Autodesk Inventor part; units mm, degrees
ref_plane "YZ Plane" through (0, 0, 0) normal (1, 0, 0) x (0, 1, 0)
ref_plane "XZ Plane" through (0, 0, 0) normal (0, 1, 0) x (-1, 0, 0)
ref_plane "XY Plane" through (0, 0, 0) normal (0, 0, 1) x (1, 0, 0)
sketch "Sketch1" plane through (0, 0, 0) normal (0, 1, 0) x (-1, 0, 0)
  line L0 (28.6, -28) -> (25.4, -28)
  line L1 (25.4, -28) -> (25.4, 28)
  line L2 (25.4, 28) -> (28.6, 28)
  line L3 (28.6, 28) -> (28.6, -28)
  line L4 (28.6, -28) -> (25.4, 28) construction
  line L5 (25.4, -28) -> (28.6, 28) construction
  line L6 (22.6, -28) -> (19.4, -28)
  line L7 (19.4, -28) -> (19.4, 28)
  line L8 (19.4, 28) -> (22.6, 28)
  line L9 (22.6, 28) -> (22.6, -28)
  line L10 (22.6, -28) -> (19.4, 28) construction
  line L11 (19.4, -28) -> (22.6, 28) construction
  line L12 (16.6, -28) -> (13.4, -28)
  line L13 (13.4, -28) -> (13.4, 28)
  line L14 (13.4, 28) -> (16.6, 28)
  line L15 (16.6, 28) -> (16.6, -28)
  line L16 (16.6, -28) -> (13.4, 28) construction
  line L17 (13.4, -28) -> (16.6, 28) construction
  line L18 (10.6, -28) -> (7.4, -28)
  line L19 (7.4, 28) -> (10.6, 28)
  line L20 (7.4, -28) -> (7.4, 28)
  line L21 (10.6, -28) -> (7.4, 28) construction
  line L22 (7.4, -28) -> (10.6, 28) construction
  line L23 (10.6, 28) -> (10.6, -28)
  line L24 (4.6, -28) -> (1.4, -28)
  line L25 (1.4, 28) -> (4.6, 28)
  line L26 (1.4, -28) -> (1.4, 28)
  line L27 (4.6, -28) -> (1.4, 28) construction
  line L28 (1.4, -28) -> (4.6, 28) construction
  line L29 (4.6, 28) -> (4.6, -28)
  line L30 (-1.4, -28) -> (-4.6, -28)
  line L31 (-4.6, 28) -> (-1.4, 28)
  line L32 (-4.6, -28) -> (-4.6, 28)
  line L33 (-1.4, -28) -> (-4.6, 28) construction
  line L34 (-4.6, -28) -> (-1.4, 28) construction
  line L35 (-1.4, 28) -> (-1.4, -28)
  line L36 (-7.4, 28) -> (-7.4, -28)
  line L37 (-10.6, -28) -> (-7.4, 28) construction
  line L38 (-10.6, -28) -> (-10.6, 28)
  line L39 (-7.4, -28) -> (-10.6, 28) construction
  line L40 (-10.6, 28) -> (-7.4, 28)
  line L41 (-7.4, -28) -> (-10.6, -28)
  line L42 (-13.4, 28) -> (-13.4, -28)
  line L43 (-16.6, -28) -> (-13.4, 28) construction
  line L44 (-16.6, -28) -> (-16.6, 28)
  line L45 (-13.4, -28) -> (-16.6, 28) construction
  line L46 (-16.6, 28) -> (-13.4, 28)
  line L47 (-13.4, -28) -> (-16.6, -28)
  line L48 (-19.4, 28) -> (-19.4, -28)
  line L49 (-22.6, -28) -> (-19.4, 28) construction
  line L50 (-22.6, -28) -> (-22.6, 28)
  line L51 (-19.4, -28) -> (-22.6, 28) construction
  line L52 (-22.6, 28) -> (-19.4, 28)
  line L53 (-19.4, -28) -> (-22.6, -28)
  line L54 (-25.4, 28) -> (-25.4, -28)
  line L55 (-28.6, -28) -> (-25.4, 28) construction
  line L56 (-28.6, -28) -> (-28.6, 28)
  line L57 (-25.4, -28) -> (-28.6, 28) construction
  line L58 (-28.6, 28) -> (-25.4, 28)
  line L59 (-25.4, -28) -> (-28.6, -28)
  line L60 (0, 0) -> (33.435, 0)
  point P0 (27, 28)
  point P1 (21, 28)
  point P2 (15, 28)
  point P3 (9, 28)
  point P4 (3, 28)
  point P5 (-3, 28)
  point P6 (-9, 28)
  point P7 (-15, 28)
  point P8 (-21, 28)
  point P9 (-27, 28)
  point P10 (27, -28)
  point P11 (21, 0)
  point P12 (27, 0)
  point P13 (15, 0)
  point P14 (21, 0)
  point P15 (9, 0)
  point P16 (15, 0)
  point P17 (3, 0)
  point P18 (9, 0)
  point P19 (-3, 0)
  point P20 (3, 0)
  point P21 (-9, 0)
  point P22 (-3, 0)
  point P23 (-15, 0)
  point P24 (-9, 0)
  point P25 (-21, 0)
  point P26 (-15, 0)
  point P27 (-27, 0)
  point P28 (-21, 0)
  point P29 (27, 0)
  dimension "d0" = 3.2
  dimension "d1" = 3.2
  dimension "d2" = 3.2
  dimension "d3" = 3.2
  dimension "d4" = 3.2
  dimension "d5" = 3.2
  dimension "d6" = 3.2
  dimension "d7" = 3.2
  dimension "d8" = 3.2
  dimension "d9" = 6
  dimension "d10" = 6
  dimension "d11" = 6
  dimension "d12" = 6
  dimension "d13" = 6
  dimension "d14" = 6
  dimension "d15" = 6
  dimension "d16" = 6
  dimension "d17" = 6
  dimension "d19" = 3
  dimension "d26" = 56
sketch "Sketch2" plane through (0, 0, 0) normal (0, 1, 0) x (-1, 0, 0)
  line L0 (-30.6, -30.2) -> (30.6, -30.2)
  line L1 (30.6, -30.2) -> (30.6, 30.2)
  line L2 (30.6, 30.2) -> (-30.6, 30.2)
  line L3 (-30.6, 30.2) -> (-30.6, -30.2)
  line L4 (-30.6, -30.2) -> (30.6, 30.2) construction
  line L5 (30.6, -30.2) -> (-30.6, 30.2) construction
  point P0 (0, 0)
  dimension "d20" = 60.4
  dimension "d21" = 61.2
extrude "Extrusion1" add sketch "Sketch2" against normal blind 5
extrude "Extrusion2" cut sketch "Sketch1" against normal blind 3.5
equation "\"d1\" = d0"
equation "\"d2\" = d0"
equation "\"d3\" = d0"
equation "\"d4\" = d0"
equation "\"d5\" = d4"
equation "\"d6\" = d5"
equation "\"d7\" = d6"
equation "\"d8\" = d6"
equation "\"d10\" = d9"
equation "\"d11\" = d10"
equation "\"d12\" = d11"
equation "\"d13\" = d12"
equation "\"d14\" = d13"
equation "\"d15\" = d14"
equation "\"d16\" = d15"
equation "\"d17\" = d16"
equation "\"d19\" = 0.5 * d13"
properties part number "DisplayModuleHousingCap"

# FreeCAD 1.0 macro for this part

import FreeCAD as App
import Part
import Sketcher
from FreeCAD import Vector
Q = App.Units.Quantity


def add_polygon(sketch, points):
    """Adds a closed chain of lines whose ends are joined by coincident constraints."""
    first, n = sketch.GeometryCount, len(points)
    for a, b in zip(points, points[1:] + points[:1]):
        sketch.addGeometry(Part.LineSegment(App.Vector(*a, 0), App.Vector(*b, 0)), False)
    for i in range(n):
        sketch.addConstraint(Sketcher.Constraint("Coincident", first + i, 2, first + (i + 1) % n, 1))

doc = App.newDocument("Part")
body = doc.addObject("PartDesign::Body", "Body")

sketch1 = body.newObject("Sketcher::SketchObject", "Sketch")
sketch1.AttachmentSupport = (doc.getObject("XZ_Plane"), [""])
sketch1.MapMode = "FlatFace"
add_polygon(sketch1, [(31, 30), (31, -30), (-31, -30), (-31, 30)])
sketch1.addConstraint([
    Sketcher.Constraint("Vertical", 0),
    Sketcher.Constraint("Horizontal", 1),
    Sketcher.Constraint("Vertical", 2),
    Sketcher.Constraint("Horizontal", 3),
    Sketcher.Constraint("Symmetric", 0, 2, 2, 2, -1, 1),
    Sketcher.Constraint("DistanceX", 1, 2, 1, 1, Q("61.2 mm")),
    Sketcher.Constraint("DistanceY", 0, 2, 0, 1, Q("60.4 mm")),
])
pad1 = body.newObject("PartDesign::Pad", "Pad")
pad1.Profile = sketch1
pad1.Length = 5

sketch2 = body.newObject("Sketcher::SketchObject", "Sketch001")
sketch2.AttachmentSupport = (doc.getObject("XZ_Plane"), [""])
sketch2.MapMode = "FlatFace"
add_polygon(sketch2, [(-4.6, -28), (-4.6, 28), (-1.4, 28), (-1.4, -28)])
add_polygon(sketch2, [(-10.6, -28), (-10.6, 28), (-7.4, 28), (-7.4, -28)])
add_polygon(sketch2, [(-16.6, -28), (-16.6, 28), (-13.4, 28), (-13.4, -28)])
add_polygon(sketch2, [(-22.6, -28), (-22.6, 28), (-19.4, 28), (-19.4, -28)])
add_polygon(sketch2, [(-25.4, -28), (-28.6, -28), (-28.6, 28), (-25.4, 28)])
add_polygon(sketch2, [(4.6, -28), (1.4, -28), (1.4, 28), (4.6, 28)])
add_polygon(sketch2, [(7.4, -28), (7.4, 28), (10.6, 28), (10.6, -28)])
add_polygon(sketch2, [(13.4, -28), (13.4, 28), (16.6, 28), (16.6, -28)])
add_polygon(sketch2, [(19.4, -28), (19.4, 28), (22.6, 28), (22.6, -28)])
add_polygon(sketch2, [(25.4, -28), (25.4, 28), (28.6, 28), (28.6, -28)])
sketch2.addConstraint([
    Sketcher.Constraint("Vertical", 0),
    Sketcher.Constraint("Horizontal", 1),
    Sketcher.Constraint("Vertical", 2),
    Sketcher.Constraint("Horizontal", 3),
    Sketcher.Constraint("Vertical", 4),
    Sketcher.Constraint("Horizontal", 5),
    Sketcher.Constraint("Vertical", 6),
    Sketcher.Constraint("Horizontal", 7),
    Sketcher.Constraint("Vertical", 8),
    Sketcher.Constraint("Horizontal", 9),
    Sketcher.Constraint("Vertical", 10),
    Sketcher.Constraint("Horizontal", 11),
    Sketcher.Constraint("Vertical", 12),
    Sketcher.Constraint("Horizontal", 13),
    Sketcher.Constraint("Vertical", 14),
    Sketcher.Constraint("Horizontal", 15),
    Sketcher.Constraint("Horizontal", 16),
    Sketcher.Constraint("Vertical", 17),
    Sketcher.Constraint("Horizontal", 18),
    Sketcher.Constraint("Vertical", 19),
    Sketcher.Constraint("Horizontal", 20),
    Sketcher.Constraint("Vertical", 21),
    Sketcher.Constraint("Horizontal", 22),
    Sketcher.Constraint("Vertical", 23),
    Sketcher.Constraint("Vertical", 24),
    Sketcher.Constraint("Horizontal", 25),
    Sketcher.Constraint("Vertical", 26),
    Sketcher.Constraint("Horizontal", 27),
    Sketcher.Constraint("Vertical", 28),
    Sketcher.Constraint("Horizontal", 29),
    Sketcher.Constraint("Vertical", 30),
    Sketcher.Constraint("Horizontal", 31),
    Sketcher.Constraint("Vertical", 32),
    Sketcher.Constraint("Horizontal", 33),
    Sketcher.Constraint("Vertical", 34),
    Sketcher.Constraint("Horizontal", 35),
    Sketcher.Constraint("Vertical", 36),
    Sketcher.Constraint("Horizontal", 37),
    Sketcher.Constraint("Vertical", 38),
    Sketcher.Constraint("Horizontal", 39),
    Sketcher.Constraint("Symmetric", 1, 2, 20, 2, -1, 1),
    Sketcher.Constraint("Symmetric", 3, 2, 22, 2, -1, 1),
    Sketcher.Constraint("Symmetric", 6, 2, 24, 2, -1, 1),
    Sketcher.Constraint("Symmetric", 4, 2, 26, 2, -1, 1),
    Sketcher.Constraint("Symmetric", 10, 2, 28, 2, -1, 1),
    Sketcher.Constraint("Symmetric", 8, 2, 30, 2, -1, 1),
    Sketcher.Constraint("Symmetric", 14, 2, 32, 2, -1, 1),
    Sketcher.Constraint("Symmetric", 12, 2, 34, 2, -1, 1),
    Sketcher.Constraint("Symmetric", 19, 2, 36, 2, -1, 1),
    Sketcher.Constraint("Symmetric", 17, 2, 38, 2, -1, 1),
    Sketcher.Constraint("Horizontal", 1, 2, 4, 2),
    Sketcher.Constraint("Horizontal", 3, 2, 6, 2),
    Sketcher.Constraint("Horizontal", 5, 2, 8, 2),
    Sketcher.Constraint("Horizontal", 7, 2, 10, 2),
    Sketcher.Constraint("Horizontal", 9, 2, 12, 2),
    Sketcher.Constraint("Horizontal", 11, 2, 14, 2),
    Sketcher.Constraint("Horizontal", 15, 2, 16, 2),
    Sketcher.Constraint("Horizontal", 13, 2, 17, 2),
    Sketcher.Constraint("Horizontal", 19, 2, 20, 2),
    Sketcher.Constraint("Equal", 3, 5),
    Sketcher.Constraint("Equal", 7, 9),
    Sketcher.Constraint("Equal", 11, 13),
    Sketcher.Constraint("Equal", 15, 16),
    Sketcher.Constraint("DistanceY", 0, 1, 0, 2, Q("56 mm")),
    Sketcher.Constraint("DistanceX", 1, 1, 1, 2, Q("3.2 mm")),
    Sketcher.Constraint("DistanceX", 4, 2, 0, 2, Q("6 mm")),
    Sketcher.Constraint("DistanceX", 8, 2, 4, 2, Q("6 mm")),
    Sketcher.Constraint("DistanceX", 12, 2, 8, 2, Q("6 mm")),
    Sketcher.Constraint("DistanceX", 16, 2, 15, 2, Q("6 mm")),
    Sketcher.Constraint("DistanceX", 3, 2, 20, 2, Q("6 mm")),
])
pocket1 = body.newObject("PartDesign::Pocket", "Pocket")
pocket1.Profile = sketch2
pocket1.Length = 3.5
pocket1.Reversed = True

doc.recompute()
